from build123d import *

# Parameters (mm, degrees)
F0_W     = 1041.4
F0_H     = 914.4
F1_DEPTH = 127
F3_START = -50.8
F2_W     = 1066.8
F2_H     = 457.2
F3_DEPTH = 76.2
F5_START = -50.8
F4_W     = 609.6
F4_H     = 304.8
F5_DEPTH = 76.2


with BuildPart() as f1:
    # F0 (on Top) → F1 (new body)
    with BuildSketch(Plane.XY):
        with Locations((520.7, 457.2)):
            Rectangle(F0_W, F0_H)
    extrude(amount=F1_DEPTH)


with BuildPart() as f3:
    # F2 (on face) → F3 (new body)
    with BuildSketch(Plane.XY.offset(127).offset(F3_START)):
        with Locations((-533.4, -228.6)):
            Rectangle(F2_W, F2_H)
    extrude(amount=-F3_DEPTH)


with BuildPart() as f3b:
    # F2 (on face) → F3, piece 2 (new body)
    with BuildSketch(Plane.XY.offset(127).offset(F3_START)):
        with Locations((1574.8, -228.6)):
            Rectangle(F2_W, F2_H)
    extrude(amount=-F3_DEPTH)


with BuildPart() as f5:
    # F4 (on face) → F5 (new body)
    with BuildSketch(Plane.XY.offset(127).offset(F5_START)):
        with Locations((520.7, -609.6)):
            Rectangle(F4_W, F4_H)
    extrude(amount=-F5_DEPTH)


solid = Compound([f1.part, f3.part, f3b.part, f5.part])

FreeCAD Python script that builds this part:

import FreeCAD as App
import Part
import Sketcher
from FreeCAD import Vector
Q = App.Units.Quantity


def add_polygon(sketch, points):
    """Adds a closed chain of lines whose ends are joined by coincident constraints."""
    first, n = sketch.GeometryCount, len(points)
    for a, b in zip(points, points[1:] + points[:1]):
        sketch.addGeometry(Part.LineSegment(App.Vector(*a, 0), App.Vector(*b, 0)), False)
    for i in range(n):
        sketch.addConstraint(Sketcher.Constraint("Coincident", first + i, 2, first + (i + 1) % n, 1))

doc = App.newDocument("Part")
body = doc.addObject("PartDesign::Body", "Body")

sketch1 = doc.addObject("Sketcher::SketchObject", "Sketch")
body.addObject(sketch1)
sketch1.AttachmentSupport = (doc.XY_Plane, [""])
sketch1.MapMode = "FlatFace"
add_polygon(sketch1, [(0, 914), (0, 0), (1041, 0), (1041, 914)])
sketch1.addConstraint([
    Sketcher.Constraint("Vertical", 0),
    Sketcher.Constraint("Horizontal", 1),
    Sketcher.Constraint("Vertical", 2),
    Sketcher.Constraint("Horizontal", 3),
    Sketcher.Constraint("Coincident", 0, 2, -1, 1),
    Sketcher.Constraint("DistanceX", 1, 1, 1, 2, Q("41 in")),
    Sketcher.Constraint("DistanceY", 0, 2, 0, 1, Q("36 in")),
])
pad1 = doc.addObject("PartDesign::Pad", "Pad")
body.addObject(pad1)
pad1.Profile = sketch1
pad1.Length = Q("5 in")
body2 = doc.addObject("PartDesign::Body", "Body001")

sketch2 = doc.addObject("Sketcher::SketchObject", "Sketch001")
body2.addObject(sketch2)
sketch2.AttachmentSupport = (doc.getObject("XY_Plane001"), [""])
sketch2.MapMode = "FlatFace"
sketch2.AttachmentOffset = App.Placement(Vector(0, 0, 3 * 25.4), App.Rotation())
add_polygon(sketch2, [(-1067, 0), (-1067, -457), (0, -457), (0, 0)])
sketch2.addConstraint([
    Sketcher.Constraint("Vertical", 0),
    Sketcher.Constraint("Horizontal", 1),
    Sketcher.Constraint("Vertical", 2),
    Sketcher.Constraint("Horizontal", 3),
    Sketcher.Constraint("Coincident", 2, 2, -1, 1),
    Sketcher.Constraint("DistanceX", 1, 1, 1, 2, Q("42 in")),
    Sketcher.Constraint("DistanceY", 0, 2, 0, 1, Q("18 in")),
])
pad2 = doc.addObject("PartDesign::Pad", "Pad001")
body2.addObject(pad2)
pad2.Profile = sketch2
pad2.Length = Q("3 in")
pad2.Reversed = True
body3 = doc.addObject("PartDesign::Body", "Body002")

sketch3 = doc.addObject("Sketcher::SketchObject", "Sketch002")
body3.addObject(sketch3)
sketch3.AttachmentSupport = (doc.getObject("XY_Plane002"), [""])
sketch3.MapMode = "FlatFace"
sketch3.AttachmentOffset = App.Placement(Vector(0, 0, 3 * 25.4), App.Rotation())
add_polygon(sketch3, [(1041, 0), (1041, -457), (2108, -457), (2108, 0)])
sketch3.addConstraint([
    Sketcher.Constraint("Vertical", 0),
    Sketcher.Constraint("Horizontal", 1),
    Sketcher.Constraint("Vertical", 2),
    Sketcher.Constraint("Horizontal", 3),
    Sketcher.Constraint("PointOnObject", 2, 2, -1),
    Sketcher.Constraint("DistanceX", 1, 1, 1, 2, Q("42 in")),
    Sketcher.Constraint("DistanceY", 0, 2, 0, 1, Q("18 in")),
    Sketcher.Constraint("DistanceX", -1, 1, 0, 2, Q("41 in")),
])
pad3 = doc.addObject("PartDesign::Pad", "Pad002")
body3.addObject(pad3)
pad3.Profile = sketch3
pad3.Length = Q("3 in")
pad3.Reversed = True
body4 = doc.addObject("PartDesign::Body", "Body003")

sketch4 = doc.addObject("Sketcher::SketchObject", "Sketch003")
body4.addObject(sketch4)
sketch4.AttachmentSupport = (doc.getObject("XY_Plane003"), [""])
sketch4.MapMode = "FlatFace"
sketch4.AttachmentOffset = App.Placement(Vector(0, 0, 3 * 25.4), App.Rotation())
add_polygon(sketch4, [(216, -457), (216, -762), (826, -762), (826, -457)])
sketch4.addConstraint([
    Sketcher.Constraint("Vertical", 0),
    Sketcher.Constraint("Horizontal", 1),
    Sketcher.Constraint("Vertical", 2),
    Sketcher.Constraint("Horizontal", 3),
    Sketcher.Constraint("DistanceX", 1, 1, 1, 2, Q("24 in")),
    Sketcher.Constraint("DistanceY", 0, 2, 0, 1, Q("12 in")),
    Sketcher.Constraint("DistanceY", 0, 2, -1, 1, Q("30 in")),
    Sketcher.Constraint("DistanceX", -1, 1, 0, 2, Q("8.5 in")),
])
pad4 = doc.addObject("PartDesign::Pad", "Pad003")
body4.addObject(pad4)
pad4.Profile = sketch4
pad4.Length = Q("3 in")
pad4.Reversed = True

doc.recompute()
